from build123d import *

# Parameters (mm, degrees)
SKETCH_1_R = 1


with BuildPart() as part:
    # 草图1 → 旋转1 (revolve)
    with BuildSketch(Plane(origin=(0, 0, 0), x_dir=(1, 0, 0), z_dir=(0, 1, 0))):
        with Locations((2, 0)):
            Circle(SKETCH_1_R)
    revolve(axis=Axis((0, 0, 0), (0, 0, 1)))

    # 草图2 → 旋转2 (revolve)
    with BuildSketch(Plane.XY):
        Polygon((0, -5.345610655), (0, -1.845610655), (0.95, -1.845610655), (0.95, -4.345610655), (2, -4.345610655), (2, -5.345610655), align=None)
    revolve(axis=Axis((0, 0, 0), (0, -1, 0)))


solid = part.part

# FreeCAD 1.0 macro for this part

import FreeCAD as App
import Part
import Sketcher

V = App.Vector
Q = App.Units.Quantity


def add_polygon(sketch, points):
    """Adds a closed chain of lines whose ends are joined by coincident constraints."""
    first, n = sketch.GeometryCount, len(points)
    for a, b in zip(points, points[1:] + points[:1]):
        sketch.addGeometry(Part.LineSegment(App.Vector(*a, 0), App.Vector(*b, 0)), False)
    for i in range(n):
        sketch.addConstraint(Sketcher.Constraint("Coincident", first + i, 2, first + (i + 1) % n, 1))

doc = App.newDocument("Part")
body = doc.addObject("PartDesign::Body", "Body")

# Sketch on XZ plane
sketch1 = body.newObject("Sketcher::SketchObject", "Sketch")
sketch1.AttachmentSupport = (doc.getObject("XZ_Plane"), [""])
sketch1.MapMode = "FlatFace"
sketch1.addGeometry(Part.Circle(V(2, 0, 0), V(0, 0, 1), 1), False)
sketch1.addConstraint(Sketcher.Constraint("PointOnObject", 0, 3, -1))
sketch1.addConstraint(Sketcher.Constraint("Diameter", 0, Q("2 mm")))
sketch1.addConstraint(Sketcher.Constraint("DistanceX", -1, 1, 0, 3, Q("2 mm")))
revolution = body.newObject("PartDesign::Revolution", "Revolution")
revolution.Profile = sketch1
revolution.ReferenceAxis = (sketch1, ["V_Axis"])
revolution.Angle = 360

# Sketch on XY plane
sketch2 = body.newObject("Sketcher::SketchObject", "Sketch001")
sketch2.AttachmentSupport = (doc.getObject("XY_Plane"), [""])
sketch2.MapMode = "FlatFace"
add_polygon(sketch2, [(0, -1.8), (0, -5.3), (2, -5.3), (2, -4.3), (0.9, -4.3), (0.9, -1.8)])  # lines 0-5
sketch2.addConstraint(Sketcher.Constraint("Vertical", 0))
sketch2.addConstraint(Sketcher.Constraint("Horizontal", 1))
sketch2.addConstraint(Sketcher.Constraint("Vertical", 2))
sketch2.addConstraint(Sketcher.Constraint("Horizontal", 3))
sketch2.addConstraint(Sketcher.Constraint("Vertical", 4))
sketch2.addConstraint(Sketcher.Constraint("Horizontal", 5))
sketch2.addConstraint(Sketcher.Constraint("PointOnObject", 0, 2, -2))
sketch2.addConstraint(Sketcher.Constraint("DistanceX", 1, 1, 1, 2, Q("2 mm")))
sketch2.addConstraint(Sketcher.Constraint("DistanceY", 2, 1, 2, 2, Q("1 mm")))
sketch2.addConstraint(Sketcher.Constraint("DistanceY", 0, 2, 0, 1, Q("3.5 mm")))
sketch2.addConstraint(Sketcher.Constraint("DistanceX", 3, 2, 3, 1, Q("1.05 mm")))
sketch2.addConstraint(Sketcher.Constraint("DistanceY", 0, 2, -1, 1, Q("5.345611 mm")))
revolution2 = body.newObject("PartDesign::Revolution", "Revolution001")
revolution2.Profile = sketch2
revolution2.ReferenceAxis = (sketch2, ["V_Axis"])
revolution2.Angle = 360

doc.recompute()
